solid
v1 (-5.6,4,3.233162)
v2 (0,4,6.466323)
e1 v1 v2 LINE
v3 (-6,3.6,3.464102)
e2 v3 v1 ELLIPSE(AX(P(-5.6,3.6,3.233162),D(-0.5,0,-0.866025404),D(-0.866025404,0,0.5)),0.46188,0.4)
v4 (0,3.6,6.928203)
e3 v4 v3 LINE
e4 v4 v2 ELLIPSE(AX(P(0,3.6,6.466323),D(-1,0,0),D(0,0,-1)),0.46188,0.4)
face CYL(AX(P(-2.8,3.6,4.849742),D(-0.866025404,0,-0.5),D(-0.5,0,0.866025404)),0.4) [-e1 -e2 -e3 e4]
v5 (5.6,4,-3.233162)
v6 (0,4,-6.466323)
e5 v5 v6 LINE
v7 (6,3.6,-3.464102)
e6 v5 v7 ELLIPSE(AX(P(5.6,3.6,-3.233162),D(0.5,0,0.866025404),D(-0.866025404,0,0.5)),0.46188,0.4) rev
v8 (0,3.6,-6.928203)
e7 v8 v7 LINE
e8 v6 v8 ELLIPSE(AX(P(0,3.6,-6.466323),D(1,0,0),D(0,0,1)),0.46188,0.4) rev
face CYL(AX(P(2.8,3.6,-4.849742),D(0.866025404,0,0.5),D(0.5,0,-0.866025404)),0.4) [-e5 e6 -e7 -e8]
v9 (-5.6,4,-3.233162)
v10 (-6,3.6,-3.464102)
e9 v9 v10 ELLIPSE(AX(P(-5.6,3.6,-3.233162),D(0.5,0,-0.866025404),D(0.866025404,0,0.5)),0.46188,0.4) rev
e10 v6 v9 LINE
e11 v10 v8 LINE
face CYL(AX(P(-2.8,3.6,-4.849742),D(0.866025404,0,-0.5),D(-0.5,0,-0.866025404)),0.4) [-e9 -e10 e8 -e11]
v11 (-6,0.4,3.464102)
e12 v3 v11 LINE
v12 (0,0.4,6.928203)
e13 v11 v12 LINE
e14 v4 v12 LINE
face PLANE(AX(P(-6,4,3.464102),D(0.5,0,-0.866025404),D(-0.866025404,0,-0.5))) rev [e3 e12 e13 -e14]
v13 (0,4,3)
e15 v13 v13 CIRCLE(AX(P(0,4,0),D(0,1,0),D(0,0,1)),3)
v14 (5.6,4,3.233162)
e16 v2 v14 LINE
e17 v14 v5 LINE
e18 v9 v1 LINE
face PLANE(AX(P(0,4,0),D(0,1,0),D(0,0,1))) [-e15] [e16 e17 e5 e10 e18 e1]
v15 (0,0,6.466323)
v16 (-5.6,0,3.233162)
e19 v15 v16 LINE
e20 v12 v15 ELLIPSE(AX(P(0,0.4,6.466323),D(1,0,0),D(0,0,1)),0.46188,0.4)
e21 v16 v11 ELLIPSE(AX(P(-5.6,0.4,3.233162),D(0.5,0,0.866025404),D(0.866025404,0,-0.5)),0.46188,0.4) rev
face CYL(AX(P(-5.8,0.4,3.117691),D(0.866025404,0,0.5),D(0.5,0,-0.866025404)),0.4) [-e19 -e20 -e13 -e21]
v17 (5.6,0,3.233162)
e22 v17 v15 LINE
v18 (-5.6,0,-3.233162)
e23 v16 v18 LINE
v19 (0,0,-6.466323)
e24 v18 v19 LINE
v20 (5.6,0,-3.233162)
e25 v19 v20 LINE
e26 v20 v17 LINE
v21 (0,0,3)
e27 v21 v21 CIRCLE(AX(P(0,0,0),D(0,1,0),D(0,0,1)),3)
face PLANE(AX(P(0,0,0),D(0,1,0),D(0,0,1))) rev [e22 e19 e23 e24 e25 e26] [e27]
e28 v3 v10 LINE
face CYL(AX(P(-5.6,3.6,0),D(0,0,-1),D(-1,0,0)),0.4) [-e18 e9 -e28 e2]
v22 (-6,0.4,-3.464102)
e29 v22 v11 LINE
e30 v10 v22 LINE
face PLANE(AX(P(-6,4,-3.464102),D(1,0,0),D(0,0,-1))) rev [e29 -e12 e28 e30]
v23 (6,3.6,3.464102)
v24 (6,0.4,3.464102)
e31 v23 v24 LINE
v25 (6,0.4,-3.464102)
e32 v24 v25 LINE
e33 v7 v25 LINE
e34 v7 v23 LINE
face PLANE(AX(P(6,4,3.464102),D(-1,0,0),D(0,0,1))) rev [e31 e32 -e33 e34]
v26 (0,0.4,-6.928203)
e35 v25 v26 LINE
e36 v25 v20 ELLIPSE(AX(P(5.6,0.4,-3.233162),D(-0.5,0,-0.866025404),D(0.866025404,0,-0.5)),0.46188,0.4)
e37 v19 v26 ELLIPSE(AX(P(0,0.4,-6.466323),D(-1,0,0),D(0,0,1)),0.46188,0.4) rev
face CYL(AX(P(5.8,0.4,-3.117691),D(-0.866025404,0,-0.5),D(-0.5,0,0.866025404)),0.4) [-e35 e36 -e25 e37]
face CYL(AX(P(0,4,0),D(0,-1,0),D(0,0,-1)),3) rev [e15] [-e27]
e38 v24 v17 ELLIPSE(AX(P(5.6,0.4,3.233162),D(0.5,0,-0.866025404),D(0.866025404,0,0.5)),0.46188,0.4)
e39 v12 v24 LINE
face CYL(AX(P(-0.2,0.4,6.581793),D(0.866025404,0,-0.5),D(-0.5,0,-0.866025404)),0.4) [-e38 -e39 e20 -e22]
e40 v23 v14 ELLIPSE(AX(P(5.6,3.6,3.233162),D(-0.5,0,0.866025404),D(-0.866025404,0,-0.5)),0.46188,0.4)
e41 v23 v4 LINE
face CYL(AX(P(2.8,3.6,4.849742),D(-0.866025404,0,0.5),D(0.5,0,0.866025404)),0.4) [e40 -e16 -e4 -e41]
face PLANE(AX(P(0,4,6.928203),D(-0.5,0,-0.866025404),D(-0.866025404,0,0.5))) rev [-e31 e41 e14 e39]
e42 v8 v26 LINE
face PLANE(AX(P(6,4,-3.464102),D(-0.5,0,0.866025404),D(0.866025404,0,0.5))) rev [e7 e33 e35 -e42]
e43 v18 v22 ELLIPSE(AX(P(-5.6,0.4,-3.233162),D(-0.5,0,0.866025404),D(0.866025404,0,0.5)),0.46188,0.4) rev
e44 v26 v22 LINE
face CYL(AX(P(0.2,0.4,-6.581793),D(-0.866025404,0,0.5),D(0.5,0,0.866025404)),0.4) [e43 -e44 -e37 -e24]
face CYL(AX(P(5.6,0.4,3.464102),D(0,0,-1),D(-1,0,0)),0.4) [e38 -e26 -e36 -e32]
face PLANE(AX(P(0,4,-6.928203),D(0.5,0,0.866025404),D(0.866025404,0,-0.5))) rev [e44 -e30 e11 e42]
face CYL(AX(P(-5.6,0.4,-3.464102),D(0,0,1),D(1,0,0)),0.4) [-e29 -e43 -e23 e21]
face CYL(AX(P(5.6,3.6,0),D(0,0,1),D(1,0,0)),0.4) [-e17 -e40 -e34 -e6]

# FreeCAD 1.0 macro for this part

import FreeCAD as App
import Part
import Sketcher
Q = App.Units.Quantity


def edges_at(feature, points):
    """Names of the edges that pass closest to the given points."""
    edges = feature.Shape.Edges
    near = lambda p: min(range(len(edges)), key=lambda i: edges[i].distToShape(Part.Vertex(*p))[0])
    return sorted({f"Edge{near(p) + 1}" for p in points})

doc = App.newDocument("Part")
body = doc.addObject("PartDesign::Body", "Body")

sketch1 = body.newObject("Sketcher::SketchObject", "Sketch")
sketch1.AttachmentSupport = (doc.getObject("XZ_Plane"), [""])
sketch1.MapMode = "FlatFace"
sketch1.addGeometry(Part.LineSegment(App.Vector(0, -6.9, 0), App.Vector(-6, -3.5, 0)), False)
sketch1.addGeometry(Part.LineSegment(App.Vector(-6, -3.5, 0), App.Vector(-6, 3.5, 0)), False)
sketch1.addGeometry(Part.LineSegment(App.Vector(-6, 3.5, 0), App.Vector(0, 6.9, 0)), False)
sketch1.addGeometry(Part.LineSegment(App.Vector(0, 6.9, 0), App.Vector(6, 3.5, 0)), False)
sketch1.addGeometry(Part.LineSegment(App.Vector(6, 3.5, 0), App.Vector(6, -3.5, 0)), False)
sketch1.addGeometry(Part.LineSegment(App.Vector(6, -3.5, 0), App.Vector(0, -6.9, 0)), False)
sketch1.addGeometry(Part.Circle(App.Vector(0, 0, 0), App.Vector(0, 0, 1), 3), False)
sketch1.addConstraint(Sketcher.Constraint("Coincident", 0, 2, 1, 1))
sketch1.addConstraint(Sketcher.Constraint("Coincident", 1, 2, 2, 1))
sketch1.addConstraint(Sketcher.Constraint("Coincident", 2, 2, 3, 1))
sketch1.addConstraint(Sketcher.Constraint("Coincident", 3, 2, 4, 1))
sketch1.addConstraint(Sketcher.Constraint("Coincident", 4, 2, 5, 1))
sketch1.addConstraint(Sketcher.Constraint("Coincident", 5, 2, 0, 1))
sketch1.addConstraint(Sketcher.Constraint("Vertical", 1))
sketch1.addConstraint(Sketcher.Constraint("Vertical", 4))
sketch1.addConstraint(Sketcher.Constraint("Coincident", 6, 3, -1, 1))
sketch1.addConstraint(Sketcher.Constraint("Symmetric", 0, 2, 3, 2, -1, 1))
sketch1.addConstraint(Sketcher.Constraint("Symmetric", 2, 2, 5, 2, -1, 1))
sketch1.addConstraint(Sketcher.Constraint("PointOnObject", 2, 2, -2))
sketch1.addConstraint(Sketcher.Constraint("Parallel", 2, 5))
sketch1.addConstraint(Sketcher.Constraint("Horizontal", 1, 2, 3, 2))
sketch1.addConstraint(Sketcher.Constraint("Diameter", 6, 6.0))
sketch1.addConstraint(Sketcher.Constraint("Angle", 0, Q("150 deg")))
sketch1.addConstraint(Sketcher.Constraint("DistanceX", 0, 2, -1, 1, 6.0))
sketch1.addConstraint(Sketcher.Constraint("DistanceY", 0, 2, -1, 1, 3.464102))
pad1 = body.newObject("PartDesign::Pad", "Pad")
pad1.Profile = sketch1
pad1.Length = 4
pad1.Reversed = True
doc.recompute()

fillet = body.newObject("PartDesign::Fillet", "Fillet")
fillet.Base = (pad1, edges_at(pad1, [
    (-6, 4, 0),
    (-3, 4, 5.196),
    (3, 4, 5.196),
    (6, 4, 0),
    (3, 4, -5.196),
    (6, 0, 0),
    (3, 0, 5.196),
    (-3, 0, 5.196),
    (-6, 0, 0),
    (-3, 0, -5.196),
    (3, 0, -5.196),
    (-3, 4, -5.196),
]))
fillet.Radius = 0.4

doc.recompute()
